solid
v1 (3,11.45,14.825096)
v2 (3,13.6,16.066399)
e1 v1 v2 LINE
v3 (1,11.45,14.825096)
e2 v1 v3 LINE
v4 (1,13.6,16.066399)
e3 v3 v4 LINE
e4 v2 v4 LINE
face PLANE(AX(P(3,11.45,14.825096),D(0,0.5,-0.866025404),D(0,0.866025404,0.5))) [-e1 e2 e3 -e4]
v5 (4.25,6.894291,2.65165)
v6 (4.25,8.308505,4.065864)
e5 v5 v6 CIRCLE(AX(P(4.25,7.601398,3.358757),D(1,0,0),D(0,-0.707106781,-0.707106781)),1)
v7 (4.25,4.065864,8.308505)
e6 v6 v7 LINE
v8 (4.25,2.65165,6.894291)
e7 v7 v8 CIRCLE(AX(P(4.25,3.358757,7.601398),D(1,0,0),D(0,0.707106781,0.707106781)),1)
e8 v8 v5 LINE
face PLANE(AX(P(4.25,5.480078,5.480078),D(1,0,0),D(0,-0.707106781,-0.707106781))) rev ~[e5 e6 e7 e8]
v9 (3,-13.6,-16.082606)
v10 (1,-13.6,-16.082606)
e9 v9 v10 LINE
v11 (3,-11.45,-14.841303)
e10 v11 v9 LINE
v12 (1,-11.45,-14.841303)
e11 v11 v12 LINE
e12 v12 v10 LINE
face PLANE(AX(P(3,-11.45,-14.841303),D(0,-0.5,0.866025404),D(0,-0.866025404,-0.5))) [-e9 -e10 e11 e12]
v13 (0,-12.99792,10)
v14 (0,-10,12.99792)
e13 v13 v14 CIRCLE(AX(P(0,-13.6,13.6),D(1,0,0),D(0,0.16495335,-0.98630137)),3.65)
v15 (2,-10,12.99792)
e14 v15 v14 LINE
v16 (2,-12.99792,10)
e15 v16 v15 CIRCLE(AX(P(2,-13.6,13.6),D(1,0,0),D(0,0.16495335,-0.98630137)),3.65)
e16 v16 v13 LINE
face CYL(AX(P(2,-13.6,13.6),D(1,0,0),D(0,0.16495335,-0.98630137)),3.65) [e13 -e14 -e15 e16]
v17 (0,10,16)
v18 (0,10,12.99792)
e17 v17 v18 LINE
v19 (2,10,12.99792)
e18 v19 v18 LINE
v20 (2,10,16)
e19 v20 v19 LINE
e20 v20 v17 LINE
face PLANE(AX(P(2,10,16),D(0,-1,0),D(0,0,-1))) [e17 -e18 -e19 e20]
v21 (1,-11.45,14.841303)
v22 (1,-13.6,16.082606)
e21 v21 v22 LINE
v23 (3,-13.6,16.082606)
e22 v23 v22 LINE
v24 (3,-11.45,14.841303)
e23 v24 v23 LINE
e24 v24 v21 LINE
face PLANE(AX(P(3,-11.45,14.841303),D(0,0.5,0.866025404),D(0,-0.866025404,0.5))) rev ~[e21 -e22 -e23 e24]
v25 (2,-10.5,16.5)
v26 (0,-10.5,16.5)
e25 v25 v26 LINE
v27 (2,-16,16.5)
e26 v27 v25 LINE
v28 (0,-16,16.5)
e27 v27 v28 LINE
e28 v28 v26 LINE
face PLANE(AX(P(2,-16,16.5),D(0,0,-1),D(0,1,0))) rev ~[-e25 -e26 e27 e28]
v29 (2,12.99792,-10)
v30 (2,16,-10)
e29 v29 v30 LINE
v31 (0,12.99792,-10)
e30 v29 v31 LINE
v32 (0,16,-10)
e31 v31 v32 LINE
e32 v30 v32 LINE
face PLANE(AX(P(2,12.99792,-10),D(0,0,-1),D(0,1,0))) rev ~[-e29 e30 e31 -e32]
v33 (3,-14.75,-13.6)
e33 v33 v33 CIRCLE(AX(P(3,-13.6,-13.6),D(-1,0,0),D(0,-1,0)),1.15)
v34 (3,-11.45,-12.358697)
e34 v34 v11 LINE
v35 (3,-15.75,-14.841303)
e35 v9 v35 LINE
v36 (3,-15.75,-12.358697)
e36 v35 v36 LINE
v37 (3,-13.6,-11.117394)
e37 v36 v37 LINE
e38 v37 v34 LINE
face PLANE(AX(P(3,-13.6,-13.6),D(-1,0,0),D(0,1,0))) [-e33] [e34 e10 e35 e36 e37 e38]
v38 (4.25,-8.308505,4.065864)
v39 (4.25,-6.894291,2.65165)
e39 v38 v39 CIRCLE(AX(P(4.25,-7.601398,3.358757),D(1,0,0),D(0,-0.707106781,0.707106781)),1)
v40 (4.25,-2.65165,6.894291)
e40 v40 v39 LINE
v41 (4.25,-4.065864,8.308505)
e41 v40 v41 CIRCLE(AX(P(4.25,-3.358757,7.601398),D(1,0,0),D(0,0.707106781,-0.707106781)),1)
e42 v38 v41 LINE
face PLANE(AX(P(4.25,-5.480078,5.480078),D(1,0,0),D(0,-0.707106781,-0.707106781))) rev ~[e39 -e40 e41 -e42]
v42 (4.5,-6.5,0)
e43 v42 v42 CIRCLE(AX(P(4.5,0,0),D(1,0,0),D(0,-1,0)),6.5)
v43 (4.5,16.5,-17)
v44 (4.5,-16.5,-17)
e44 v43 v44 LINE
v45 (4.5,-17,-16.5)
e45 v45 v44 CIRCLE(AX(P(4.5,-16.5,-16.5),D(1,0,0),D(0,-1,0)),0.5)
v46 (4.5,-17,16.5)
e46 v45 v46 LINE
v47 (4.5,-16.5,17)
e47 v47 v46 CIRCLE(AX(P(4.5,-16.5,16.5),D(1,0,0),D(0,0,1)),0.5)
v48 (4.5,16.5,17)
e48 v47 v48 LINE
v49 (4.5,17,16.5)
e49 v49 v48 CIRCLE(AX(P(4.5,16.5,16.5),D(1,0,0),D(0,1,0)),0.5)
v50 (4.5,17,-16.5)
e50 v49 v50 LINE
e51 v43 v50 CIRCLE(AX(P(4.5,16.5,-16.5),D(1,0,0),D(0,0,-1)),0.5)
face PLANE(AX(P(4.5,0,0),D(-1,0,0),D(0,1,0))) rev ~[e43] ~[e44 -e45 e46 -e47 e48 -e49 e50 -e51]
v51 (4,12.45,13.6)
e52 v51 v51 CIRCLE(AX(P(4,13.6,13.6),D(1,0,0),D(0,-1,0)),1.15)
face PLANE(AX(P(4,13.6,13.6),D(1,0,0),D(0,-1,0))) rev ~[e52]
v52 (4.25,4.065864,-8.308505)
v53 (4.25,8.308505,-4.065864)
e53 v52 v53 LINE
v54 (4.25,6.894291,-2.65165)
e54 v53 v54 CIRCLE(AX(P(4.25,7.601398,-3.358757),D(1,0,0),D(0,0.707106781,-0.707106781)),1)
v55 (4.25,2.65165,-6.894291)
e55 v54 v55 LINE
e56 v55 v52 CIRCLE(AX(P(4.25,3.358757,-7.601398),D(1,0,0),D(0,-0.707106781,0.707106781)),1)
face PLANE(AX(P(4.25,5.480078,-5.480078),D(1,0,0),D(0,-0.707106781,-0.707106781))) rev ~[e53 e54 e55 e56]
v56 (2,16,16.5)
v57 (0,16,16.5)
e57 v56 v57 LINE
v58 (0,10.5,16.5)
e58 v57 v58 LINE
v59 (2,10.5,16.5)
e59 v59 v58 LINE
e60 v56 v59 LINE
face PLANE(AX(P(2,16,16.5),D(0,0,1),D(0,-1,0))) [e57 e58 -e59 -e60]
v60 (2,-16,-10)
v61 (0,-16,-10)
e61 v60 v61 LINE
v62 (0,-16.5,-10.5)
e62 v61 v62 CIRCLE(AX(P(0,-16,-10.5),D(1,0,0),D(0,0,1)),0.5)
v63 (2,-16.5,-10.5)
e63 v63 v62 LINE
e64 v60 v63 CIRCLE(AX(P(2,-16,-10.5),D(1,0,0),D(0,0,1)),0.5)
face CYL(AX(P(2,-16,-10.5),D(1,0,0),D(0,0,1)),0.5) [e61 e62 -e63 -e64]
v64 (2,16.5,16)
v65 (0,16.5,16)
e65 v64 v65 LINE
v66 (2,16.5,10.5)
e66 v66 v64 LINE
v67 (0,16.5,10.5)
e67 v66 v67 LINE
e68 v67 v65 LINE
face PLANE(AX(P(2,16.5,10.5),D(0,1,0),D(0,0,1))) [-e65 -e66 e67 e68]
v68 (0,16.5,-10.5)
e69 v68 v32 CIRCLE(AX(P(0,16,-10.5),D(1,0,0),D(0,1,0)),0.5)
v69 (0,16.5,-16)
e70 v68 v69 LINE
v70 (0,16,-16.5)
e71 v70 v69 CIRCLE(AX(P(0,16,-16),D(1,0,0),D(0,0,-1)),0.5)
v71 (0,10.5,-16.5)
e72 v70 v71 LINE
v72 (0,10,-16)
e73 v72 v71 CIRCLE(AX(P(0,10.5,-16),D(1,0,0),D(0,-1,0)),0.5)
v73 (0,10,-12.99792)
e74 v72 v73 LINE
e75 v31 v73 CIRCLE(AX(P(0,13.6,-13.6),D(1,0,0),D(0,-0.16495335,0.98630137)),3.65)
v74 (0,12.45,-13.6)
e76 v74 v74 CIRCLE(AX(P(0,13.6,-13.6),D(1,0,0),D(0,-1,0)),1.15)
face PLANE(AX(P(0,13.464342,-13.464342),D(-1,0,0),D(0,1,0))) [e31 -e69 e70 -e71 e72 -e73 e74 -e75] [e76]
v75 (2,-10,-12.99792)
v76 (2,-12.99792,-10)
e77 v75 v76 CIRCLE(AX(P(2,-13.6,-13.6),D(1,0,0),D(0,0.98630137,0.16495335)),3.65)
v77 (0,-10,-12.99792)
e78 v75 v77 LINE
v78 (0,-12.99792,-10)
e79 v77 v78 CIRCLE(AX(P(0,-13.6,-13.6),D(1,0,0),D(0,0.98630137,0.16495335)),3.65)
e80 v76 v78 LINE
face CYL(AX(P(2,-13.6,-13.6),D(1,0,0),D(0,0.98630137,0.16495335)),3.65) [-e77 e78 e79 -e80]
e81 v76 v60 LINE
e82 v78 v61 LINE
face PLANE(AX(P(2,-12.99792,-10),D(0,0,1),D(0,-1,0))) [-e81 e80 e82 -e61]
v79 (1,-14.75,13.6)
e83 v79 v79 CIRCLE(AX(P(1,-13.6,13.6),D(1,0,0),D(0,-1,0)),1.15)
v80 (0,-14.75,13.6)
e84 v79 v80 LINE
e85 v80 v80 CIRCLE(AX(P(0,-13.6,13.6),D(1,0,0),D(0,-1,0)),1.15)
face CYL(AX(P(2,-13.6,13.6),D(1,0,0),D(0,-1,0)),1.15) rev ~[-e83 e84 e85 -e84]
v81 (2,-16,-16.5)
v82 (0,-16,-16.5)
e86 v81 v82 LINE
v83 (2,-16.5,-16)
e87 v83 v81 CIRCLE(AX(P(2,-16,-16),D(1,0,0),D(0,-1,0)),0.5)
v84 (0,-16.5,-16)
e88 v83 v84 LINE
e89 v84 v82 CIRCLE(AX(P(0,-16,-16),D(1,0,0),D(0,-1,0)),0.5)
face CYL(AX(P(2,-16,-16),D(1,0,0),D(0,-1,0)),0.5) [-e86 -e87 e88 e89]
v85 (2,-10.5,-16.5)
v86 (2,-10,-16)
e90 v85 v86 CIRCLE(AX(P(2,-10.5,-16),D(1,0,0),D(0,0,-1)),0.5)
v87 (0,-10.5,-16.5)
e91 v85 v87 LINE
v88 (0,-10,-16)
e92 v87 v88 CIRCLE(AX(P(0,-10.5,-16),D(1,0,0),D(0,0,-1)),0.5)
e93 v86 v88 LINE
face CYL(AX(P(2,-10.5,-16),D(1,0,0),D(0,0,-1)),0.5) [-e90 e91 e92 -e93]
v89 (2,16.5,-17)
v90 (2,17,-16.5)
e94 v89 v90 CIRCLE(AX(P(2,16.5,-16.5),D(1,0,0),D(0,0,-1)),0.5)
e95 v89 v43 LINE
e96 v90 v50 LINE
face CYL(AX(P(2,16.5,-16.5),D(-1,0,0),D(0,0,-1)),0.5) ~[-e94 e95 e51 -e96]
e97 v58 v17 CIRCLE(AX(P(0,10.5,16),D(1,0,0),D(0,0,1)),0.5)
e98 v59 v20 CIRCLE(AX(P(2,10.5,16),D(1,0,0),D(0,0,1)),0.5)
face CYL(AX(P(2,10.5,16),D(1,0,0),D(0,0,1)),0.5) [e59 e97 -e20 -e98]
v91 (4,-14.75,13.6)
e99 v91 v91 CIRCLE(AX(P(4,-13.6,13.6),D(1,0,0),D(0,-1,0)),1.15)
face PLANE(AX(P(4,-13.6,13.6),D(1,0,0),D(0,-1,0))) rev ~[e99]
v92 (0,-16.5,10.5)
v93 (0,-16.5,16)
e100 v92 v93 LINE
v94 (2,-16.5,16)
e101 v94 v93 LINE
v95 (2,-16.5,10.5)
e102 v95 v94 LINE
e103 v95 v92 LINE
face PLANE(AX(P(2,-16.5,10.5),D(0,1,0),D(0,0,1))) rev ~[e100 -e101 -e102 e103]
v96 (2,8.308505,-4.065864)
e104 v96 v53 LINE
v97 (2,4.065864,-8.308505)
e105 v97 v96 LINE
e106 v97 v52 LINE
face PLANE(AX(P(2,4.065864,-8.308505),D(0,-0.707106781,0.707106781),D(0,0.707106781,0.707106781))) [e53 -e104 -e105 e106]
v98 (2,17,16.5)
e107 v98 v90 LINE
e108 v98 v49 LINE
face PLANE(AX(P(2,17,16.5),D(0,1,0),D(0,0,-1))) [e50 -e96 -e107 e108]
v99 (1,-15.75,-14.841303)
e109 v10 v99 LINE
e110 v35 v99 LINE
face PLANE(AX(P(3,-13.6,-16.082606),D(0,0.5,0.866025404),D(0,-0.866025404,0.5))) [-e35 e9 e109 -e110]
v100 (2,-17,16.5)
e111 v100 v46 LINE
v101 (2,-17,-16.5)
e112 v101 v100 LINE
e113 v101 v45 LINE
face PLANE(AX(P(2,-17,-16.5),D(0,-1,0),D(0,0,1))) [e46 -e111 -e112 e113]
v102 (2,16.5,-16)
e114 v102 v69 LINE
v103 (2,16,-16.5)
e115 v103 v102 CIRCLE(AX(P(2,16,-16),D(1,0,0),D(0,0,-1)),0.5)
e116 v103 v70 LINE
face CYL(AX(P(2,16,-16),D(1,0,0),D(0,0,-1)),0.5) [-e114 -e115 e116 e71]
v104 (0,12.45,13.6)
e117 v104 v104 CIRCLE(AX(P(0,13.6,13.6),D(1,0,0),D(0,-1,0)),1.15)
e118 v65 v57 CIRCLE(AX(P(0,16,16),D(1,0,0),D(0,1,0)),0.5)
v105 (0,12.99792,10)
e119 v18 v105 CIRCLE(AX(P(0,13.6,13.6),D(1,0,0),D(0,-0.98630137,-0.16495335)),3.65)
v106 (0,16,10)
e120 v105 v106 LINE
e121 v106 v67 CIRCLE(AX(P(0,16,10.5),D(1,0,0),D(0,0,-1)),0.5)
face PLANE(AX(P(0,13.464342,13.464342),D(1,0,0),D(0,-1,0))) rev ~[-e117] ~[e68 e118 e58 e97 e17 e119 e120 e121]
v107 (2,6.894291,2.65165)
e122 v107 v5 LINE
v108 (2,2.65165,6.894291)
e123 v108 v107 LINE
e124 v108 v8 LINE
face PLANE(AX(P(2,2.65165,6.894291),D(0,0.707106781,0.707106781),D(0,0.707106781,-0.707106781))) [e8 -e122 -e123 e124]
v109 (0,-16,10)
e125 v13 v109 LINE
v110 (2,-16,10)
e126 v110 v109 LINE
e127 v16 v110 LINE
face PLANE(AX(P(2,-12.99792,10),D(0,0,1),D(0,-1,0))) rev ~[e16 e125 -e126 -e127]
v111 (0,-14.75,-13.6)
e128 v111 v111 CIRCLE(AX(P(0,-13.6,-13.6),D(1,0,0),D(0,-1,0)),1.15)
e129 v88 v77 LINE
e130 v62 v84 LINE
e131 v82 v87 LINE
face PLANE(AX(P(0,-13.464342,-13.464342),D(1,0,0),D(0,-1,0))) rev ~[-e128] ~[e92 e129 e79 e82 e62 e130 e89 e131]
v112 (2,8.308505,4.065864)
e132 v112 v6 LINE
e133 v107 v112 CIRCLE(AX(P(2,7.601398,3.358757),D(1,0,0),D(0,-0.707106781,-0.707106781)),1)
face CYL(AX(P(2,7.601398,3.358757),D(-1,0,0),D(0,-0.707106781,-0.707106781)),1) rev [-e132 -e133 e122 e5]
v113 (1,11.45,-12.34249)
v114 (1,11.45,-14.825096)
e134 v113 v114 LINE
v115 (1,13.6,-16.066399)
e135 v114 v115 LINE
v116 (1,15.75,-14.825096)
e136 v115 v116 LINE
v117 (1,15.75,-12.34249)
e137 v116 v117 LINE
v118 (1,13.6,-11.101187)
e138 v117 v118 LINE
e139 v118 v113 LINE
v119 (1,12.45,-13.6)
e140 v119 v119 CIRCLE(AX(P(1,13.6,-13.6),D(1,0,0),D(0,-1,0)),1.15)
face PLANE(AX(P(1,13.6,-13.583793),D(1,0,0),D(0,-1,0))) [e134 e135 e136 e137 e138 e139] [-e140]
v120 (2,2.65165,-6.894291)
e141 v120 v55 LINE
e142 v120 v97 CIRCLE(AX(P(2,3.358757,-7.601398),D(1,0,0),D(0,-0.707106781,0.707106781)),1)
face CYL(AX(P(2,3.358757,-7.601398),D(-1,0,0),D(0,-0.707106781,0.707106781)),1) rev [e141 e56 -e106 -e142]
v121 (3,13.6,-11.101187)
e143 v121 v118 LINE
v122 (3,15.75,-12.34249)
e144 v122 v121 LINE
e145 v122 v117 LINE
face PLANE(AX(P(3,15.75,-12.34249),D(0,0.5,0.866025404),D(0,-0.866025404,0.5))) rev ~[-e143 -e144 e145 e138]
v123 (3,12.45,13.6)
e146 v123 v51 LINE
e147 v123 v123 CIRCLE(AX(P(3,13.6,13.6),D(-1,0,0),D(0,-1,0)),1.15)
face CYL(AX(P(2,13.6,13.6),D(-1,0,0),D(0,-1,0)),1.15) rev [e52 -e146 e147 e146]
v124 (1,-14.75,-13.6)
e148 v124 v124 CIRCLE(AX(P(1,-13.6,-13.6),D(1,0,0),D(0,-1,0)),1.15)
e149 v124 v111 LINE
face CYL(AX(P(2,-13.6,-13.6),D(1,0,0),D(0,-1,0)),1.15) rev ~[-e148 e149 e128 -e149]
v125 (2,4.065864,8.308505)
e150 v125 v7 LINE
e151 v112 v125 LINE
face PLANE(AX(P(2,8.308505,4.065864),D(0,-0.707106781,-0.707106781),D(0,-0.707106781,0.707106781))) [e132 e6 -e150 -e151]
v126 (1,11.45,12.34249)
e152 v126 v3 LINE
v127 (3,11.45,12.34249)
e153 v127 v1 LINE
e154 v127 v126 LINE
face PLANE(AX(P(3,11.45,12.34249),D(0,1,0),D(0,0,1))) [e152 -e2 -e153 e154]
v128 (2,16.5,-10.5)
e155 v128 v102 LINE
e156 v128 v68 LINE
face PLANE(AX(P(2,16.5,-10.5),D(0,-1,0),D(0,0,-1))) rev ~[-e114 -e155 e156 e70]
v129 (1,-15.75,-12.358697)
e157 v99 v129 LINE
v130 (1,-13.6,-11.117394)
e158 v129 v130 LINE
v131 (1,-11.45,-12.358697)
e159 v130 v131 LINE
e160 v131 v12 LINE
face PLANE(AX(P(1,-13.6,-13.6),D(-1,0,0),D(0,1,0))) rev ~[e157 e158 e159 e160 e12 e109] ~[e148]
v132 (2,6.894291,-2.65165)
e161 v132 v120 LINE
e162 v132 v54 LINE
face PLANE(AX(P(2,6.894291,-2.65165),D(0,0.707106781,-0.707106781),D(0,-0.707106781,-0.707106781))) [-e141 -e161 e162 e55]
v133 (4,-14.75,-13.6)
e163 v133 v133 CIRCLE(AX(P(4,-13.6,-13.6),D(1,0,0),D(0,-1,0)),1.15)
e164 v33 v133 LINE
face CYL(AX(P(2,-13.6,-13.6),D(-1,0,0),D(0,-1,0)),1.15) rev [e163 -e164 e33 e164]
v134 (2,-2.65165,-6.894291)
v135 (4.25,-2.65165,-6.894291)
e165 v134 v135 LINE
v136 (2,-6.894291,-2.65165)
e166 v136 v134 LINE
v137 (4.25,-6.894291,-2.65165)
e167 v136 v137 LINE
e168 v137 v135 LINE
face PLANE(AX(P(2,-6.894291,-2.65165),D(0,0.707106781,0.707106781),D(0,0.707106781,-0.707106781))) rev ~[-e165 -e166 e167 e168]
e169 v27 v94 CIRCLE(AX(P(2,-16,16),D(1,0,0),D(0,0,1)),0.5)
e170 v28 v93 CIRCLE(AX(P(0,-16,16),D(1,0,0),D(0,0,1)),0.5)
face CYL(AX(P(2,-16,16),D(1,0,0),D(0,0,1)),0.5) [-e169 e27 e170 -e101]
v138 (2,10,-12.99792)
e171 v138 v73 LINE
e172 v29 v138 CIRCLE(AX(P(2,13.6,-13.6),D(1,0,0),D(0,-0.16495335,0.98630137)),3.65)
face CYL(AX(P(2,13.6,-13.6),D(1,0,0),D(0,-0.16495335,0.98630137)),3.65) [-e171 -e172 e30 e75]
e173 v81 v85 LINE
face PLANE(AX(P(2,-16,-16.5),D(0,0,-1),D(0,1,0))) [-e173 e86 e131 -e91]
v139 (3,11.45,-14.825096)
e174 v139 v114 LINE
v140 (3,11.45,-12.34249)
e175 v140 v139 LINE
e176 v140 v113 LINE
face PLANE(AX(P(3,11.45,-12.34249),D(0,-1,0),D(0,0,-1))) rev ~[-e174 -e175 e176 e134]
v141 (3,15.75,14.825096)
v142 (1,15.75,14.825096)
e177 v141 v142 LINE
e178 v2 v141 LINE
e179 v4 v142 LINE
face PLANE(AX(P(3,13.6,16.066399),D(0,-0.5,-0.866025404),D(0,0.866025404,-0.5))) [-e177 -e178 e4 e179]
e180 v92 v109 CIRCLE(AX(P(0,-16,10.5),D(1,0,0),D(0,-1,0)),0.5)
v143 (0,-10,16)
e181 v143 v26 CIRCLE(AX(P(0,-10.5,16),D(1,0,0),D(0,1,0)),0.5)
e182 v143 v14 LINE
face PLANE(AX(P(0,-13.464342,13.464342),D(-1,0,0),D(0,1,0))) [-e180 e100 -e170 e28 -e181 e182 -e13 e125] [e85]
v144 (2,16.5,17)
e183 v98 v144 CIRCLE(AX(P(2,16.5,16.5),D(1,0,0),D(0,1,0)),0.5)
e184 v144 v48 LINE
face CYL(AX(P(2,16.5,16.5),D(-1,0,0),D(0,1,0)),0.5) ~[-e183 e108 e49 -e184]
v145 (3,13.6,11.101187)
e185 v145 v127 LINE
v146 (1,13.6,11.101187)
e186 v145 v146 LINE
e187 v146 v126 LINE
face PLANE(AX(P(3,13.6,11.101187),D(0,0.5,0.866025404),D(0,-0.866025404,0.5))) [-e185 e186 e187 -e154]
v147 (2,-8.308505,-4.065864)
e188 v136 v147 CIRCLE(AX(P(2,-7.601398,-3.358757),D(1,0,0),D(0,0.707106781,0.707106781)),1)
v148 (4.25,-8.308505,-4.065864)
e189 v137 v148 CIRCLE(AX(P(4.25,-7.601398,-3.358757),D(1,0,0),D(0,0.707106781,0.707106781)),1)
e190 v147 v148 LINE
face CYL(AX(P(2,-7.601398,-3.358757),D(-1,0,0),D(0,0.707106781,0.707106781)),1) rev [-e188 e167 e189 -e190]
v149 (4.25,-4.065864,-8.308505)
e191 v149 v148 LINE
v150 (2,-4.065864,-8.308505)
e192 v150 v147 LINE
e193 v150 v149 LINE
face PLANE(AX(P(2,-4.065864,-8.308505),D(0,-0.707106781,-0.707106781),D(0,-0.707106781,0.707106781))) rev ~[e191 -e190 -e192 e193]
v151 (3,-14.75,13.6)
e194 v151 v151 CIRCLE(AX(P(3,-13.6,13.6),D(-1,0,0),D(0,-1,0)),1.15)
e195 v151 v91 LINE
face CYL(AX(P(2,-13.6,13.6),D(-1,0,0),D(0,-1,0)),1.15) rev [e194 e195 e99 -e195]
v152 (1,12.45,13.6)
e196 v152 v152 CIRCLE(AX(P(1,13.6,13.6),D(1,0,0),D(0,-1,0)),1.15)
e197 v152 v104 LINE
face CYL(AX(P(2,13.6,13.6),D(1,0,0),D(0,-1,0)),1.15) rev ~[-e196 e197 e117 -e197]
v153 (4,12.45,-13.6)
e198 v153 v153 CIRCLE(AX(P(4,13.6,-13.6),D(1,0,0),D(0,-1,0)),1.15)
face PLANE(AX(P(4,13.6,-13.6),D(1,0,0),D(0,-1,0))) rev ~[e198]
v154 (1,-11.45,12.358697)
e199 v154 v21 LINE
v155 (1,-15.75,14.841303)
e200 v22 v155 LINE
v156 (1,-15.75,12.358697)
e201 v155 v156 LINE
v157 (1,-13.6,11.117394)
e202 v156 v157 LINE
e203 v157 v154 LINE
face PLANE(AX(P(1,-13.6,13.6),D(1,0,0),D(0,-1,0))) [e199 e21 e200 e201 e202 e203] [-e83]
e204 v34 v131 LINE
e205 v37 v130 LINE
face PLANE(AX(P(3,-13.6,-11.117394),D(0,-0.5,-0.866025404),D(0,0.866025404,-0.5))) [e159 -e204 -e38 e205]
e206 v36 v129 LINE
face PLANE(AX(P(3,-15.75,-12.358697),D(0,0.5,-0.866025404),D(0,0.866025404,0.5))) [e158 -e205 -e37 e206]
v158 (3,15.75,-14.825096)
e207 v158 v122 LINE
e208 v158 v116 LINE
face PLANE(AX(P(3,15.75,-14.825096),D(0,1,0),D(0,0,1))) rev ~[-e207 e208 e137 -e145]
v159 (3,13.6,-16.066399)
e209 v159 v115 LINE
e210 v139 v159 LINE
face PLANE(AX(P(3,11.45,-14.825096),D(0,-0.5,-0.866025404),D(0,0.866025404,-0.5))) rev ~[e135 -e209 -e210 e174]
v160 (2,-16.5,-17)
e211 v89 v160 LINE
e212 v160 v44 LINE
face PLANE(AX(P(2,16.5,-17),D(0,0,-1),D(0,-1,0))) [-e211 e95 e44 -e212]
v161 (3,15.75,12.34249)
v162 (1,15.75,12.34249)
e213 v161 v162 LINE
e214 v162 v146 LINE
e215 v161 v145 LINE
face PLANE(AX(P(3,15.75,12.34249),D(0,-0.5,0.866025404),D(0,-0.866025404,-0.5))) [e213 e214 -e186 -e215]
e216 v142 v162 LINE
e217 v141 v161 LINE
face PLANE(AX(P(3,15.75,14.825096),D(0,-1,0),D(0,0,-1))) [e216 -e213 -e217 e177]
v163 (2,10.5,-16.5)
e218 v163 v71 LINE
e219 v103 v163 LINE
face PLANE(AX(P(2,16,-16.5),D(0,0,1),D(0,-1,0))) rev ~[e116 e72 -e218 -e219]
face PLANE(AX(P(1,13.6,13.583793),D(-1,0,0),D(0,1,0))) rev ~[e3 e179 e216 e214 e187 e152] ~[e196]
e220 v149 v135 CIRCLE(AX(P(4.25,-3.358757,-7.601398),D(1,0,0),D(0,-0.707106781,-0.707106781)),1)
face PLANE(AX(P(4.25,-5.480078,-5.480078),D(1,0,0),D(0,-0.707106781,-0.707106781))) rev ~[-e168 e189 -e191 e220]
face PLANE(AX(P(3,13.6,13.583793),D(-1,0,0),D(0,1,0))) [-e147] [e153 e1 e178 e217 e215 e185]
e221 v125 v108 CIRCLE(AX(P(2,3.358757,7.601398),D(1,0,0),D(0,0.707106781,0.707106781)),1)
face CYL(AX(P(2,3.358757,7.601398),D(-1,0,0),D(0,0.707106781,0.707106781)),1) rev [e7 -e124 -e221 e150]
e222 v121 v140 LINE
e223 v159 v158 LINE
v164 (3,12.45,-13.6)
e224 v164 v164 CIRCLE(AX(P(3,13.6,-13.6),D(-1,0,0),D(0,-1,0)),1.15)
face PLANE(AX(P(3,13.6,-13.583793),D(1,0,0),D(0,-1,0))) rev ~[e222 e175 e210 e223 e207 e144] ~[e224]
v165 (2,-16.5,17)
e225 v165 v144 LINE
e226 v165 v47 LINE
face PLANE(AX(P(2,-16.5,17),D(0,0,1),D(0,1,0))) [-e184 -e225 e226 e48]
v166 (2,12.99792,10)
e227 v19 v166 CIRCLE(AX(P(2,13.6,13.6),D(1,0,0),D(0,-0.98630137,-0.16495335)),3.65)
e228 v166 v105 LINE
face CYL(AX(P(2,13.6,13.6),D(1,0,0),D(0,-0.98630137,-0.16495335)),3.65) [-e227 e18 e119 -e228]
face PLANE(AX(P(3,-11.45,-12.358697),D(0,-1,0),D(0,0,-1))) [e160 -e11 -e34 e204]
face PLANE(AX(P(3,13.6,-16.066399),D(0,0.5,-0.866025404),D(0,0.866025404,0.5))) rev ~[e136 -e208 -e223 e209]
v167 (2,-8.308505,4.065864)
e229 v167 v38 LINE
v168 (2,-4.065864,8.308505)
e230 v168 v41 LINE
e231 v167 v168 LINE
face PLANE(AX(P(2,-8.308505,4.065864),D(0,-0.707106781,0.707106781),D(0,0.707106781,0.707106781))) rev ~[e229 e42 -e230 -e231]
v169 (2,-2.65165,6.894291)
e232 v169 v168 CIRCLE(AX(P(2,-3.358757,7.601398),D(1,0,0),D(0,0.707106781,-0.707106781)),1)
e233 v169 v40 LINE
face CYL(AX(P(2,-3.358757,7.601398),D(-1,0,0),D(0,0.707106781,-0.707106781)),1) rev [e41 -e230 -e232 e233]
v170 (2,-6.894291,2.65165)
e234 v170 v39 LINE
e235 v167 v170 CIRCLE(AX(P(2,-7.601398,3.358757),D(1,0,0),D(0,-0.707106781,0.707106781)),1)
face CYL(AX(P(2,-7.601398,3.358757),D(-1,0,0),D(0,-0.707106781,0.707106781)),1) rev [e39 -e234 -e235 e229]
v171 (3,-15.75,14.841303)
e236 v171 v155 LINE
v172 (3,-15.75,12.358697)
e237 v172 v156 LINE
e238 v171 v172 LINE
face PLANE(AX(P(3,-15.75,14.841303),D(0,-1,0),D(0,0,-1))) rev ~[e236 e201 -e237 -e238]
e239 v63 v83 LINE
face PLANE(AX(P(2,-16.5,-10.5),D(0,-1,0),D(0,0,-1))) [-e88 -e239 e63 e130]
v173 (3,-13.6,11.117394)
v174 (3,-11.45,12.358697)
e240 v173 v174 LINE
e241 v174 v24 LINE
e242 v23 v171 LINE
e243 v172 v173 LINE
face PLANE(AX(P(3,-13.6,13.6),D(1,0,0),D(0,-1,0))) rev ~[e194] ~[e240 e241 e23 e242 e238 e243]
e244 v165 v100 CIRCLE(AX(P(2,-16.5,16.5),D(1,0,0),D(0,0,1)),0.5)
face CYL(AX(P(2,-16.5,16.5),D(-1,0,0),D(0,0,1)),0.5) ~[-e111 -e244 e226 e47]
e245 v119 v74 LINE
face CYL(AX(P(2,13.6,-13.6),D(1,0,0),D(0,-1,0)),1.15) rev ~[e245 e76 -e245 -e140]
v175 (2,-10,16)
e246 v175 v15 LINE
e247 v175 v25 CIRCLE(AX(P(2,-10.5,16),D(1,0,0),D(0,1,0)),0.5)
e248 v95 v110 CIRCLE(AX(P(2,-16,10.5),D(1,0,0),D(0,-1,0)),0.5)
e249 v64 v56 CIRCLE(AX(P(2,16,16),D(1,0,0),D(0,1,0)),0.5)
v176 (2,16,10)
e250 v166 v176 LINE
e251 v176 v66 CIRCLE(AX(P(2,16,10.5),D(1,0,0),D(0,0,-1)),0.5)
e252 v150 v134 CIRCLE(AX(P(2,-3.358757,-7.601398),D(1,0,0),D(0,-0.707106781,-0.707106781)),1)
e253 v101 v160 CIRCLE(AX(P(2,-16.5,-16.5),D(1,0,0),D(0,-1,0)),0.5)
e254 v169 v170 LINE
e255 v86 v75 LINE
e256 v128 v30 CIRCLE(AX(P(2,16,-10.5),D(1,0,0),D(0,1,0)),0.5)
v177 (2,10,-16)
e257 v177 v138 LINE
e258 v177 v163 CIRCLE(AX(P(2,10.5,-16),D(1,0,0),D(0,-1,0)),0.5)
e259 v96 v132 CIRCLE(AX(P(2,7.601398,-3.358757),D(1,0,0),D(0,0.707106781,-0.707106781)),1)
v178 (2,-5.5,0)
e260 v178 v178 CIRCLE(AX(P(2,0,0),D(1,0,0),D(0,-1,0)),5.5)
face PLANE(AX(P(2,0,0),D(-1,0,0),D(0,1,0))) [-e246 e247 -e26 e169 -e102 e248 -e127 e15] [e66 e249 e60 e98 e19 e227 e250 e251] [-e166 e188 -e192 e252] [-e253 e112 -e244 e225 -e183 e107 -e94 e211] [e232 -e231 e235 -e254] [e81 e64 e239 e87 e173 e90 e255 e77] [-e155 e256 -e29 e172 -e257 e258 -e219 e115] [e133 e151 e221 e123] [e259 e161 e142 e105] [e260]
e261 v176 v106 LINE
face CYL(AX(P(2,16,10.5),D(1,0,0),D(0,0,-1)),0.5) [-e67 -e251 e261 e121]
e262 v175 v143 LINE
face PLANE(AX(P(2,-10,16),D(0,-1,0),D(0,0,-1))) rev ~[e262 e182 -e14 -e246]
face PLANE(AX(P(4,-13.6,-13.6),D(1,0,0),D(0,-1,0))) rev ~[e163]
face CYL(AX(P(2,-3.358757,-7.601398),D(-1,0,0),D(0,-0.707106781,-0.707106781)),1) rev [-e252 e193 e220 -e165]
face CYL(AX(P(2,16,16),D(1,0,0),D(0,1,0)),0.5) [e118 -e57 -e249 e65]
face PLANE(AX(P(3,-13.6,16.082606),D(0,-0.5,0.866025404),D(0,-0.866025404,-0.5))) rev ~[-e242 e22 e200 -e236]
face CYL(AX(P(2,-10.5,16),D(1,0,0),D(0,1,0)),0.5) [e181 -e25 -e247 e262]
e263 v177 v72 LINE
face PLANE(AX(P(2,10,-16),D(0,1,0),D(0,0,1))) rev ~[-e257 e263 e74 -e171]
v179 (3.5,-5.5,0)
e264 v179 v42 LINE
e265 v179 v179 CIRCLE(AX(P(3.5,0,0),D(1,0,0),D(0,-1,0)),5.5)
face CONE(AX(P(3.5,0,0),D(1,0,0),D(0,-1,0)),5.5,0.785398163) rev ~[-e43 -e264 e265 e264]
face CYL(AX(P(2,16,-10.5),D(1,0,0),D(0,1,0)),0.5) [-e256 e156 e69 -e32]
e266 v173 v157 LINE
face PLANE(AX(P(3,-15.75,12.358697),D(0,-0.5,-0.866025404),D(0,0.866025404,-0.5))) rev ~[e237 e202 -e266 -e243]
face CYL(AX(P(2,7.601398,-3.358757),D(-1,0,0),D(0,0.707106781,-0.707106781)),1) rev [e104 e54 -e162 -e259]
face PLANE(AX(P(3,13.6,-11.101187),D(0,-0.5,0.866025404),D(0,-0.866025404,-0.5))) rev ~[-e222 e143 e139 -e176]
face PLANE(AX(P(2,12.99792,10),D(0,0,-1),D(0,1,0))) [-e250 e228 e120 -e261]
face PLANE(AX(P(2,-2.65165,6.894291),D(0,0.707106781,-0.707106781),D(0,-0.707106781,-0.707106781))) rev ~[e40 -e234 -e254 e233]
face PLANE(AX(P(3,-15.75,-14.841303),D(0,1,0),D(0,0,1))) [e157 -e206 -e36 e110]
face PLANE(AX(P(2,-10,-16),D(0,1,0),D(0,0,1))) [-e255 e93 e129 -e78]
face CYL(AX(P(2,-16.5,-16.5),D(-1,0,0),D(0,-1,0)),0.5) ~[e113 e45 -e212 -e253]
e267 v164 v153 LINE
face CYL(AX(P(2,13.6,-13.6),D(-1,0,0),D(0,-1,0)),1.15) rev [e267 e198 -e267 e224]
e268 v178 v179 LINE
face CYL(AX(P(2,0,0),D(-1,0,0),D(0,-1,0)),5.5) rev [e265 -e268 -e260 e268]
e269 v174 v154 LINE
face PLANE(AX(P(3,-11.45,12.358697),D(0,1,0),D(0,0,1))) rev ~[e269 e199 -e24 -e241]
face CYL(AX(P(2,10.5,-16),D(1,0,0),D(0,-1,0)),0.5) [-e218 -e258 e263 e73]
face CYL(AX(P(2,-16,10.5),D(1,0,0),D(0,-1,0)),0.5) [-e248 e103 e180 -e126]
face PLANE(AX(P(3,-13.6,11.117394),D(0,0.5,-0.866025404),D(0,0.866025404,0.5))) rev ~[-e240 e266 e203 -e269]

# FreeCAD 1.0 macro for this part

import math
import FreeCAD as App
import Part
import Sketcher

V = App.Vector
Q = App.Units.Quantity


def edges_at(feature, points):
    """Names of the edges that pass closest to the given points."""
    edges = feature.Shape.Edges
    near = lambda p: min(range(len(edges)), key=lambda i: edges[i].distToShape(Part.Vertex(*p))[0])
    return sorted({f"Edge{near(p) + 1}" for p in points})

doc = App.newDocument("Part")
params = doc.addObject("Spreadsheet::Sheet", "Params")
for row, (alias, value) in enumerate([
    ("sketch1_diameter", "11 mm"),
    ("sketch1_radius", "0.5 mm"),
    ("sketch1_width", "33 mm"),
    ("pad1_length", "2.5 mm"),
    ("sketch2_radius", "1 mm"),
    ("sketch2_length", "6 mm"),
    ("pocket1_length", "2.25 mm"),
    ("sketch3_diameter", "2.3 mm"),
    ("pocket2_length", "2 mm"),
    ("sketch4_diameter", "2.3 mm"),
    ("sketch4_radius", "0.5 mm"),
    ("sketch4_radius2", "3.65 mm"),
    ("sketch4_width", "5.5 mm"),
    ("pad2_length", "2 mm"),
    ("pocket3_length", "2 mm"),
    ("chamfer_size", "1 mm"),
], start=1):
    params.set(f"A{row}", alias)
    params.set(f"B{row}", "=" + value)
    params.setAlias(f"B{row}", alias)

body = doc.addObject("PartDesign::Body", "Body")

# Sketch on YZ plane
sketch1 = body.newObject("Sketcher::SketchObject", "Sketch")
sketch1.AttachmentSupport = (doc.getObject("YZ_Plane"), [""])
sketch1.MapMode = "FlatFace"
sketch1.addGeometry([
    Part.LineSegment(V(-16.5, -17, 0), V(16.5, -17, 0)),  # 0
    Part.ArcOfCircle(Part.Circle(V(16.5, -16.5, 0), V(0, 0, 1), 0.5), math.radians(-90), math.radians(0)),  # 1
    Part.LineSegment(V(17, -16.5, 0), V(17, 16.5, 0)),  # 2
    Part.ArcOfCircle(Part.Circle(V(16.5, 16.5, 0), V(0, 0, 1), 0.5), math.radians(0), math.radians(90)),  # 3
    Part.LineSegment(V(16.5, 17, 0), V(-16.5, 17, 0)),  # 4
    Part.ArcOfCircle(Part.Circle(V(-16.5, 16.5, 0), V(0, 0, 1), 0.5), math.radians(90), math.radians(180)),  # 5
    Part.LineSegment(V(-17, 16.5, 0), V(-17, -16.5, 0)),  # 6
    Part.ArcOfCircle(Part.Circle(V(-16.5, -16.5, 0), V(0, 0, 1), 0.5), math.radians(180), math.radians(270)),  # 7
    Part.Circle(V(0, 0, 0), V(0, 0, 1), 5.5),  # 8
], False)
sketch1.addConstraint([
    Sketcher.Constraint("Tangent", 0, 2, 1, 1),
    Sketcher.Constraint("Tangent", 1, 2, 2, 1),
    Sketcher.Constraint("Tangent", 2, 2, 3, 1),
    Sketcher.Constraint("Tangent", 3, 2, 4, 1),
    Sketcher.Constraint("Tangent", 4, 2, 5, 1),
    Sketcher.Constraint("Tangent", 5, 2, 6, 1),
    Sketcher.Constraint("Tangent", 6, 2, 7, 1),
    Sketcher.Constraint("Tangent", 7, 2, 0, 1),
    Sketcher.Constraint("Horizontal", 0),
    Sketcher.Constraint("Vertical", 2),
    Sketcher.Constraint("Horizontal", 4),
    Sketcher.Constraint("Vertical", 6),
    Sketcher.Constraint("Coincident", 8, 3, -1, 1),
    Sketcher.Constraint("Equal", 1, 3),
    Sketcher.Constraint("Equal", 3, 5),
    Sketcher.Constraint("Equal", 5, 7),
    Sketcher.Constraint("Symmetric", 1, 3, 5, 3, -1, 1),
    Sketcher.Constraint("Equal", 4, 2),
    Sketcher.Constraint("Diameter", 8, Q("11 mm")),
    Sketcher.Constraint("Radius", 1, Q("0.5 mm")),
    Sketcher.Constraint("DistanceX", 0, 1, 0, 2, Q("33 mm")),
])
sketch1.setExpression("Constraints[18]", "Params.sketch1_diameter")
sketch1.setExpression("Constraints[19]", "Params.sketch1_radius")
sketch1.setExpression("Constraints[20]", "Params.sketch1_width")
pad1 = body.newObject("PartDesign::Pad", "Pad")
pad1.Profile = sketch1
pad1.setExpression("Length", "Params.pad1_length")

# Sketch on YZ plane
sketch2 = body.newObject("Sketcher::SketchObject", "Sketch001")
sketch2.AttachmentSupport = (doc.getObject("YZ_Plane"), [""])
sketch2.MapMode = "FlatFace"
sketch2.addGeometry([
    Part.ArcOfCircle(Part.Circle(V(-7.6, -3.4, 0), V(0, 0, 1), 1), math.radians(45), math.radians(225)),  # 0
    Part.LineSegment(V(-8.3, -4.1, 0), V(-4.1, -8.3, 0)),  # 1
    Part.ArcOfCircle(Part.Circle(V(-3.4, -7.6, 0), V(0, 0, 1), 1), math.radians(-135), math.radians(45)),  # 2
    Part.LineSegment(V(-2.7, -6.9, 0), V(-6.9, -2.7, 0)),  # 3
    Part.ArcOfCircle(Part.Circle(V(3.4, 7.6, 0), V(0, 0, 1), 1), math.radians(45), math.radians(225)),  # 4
    Part.LineSegment(V(2.7, 6.9, 0), V(6.9, 2.7, 0)),  # 5
    Part.ArcOfCircle(Part.Circle(V(7.6, 3.4, 0), V(0, 0, 1), 1), math.radians(-135), math.radians(45)),  # 6
    Part.LineSegment(V(8.3, 4.1, 0), V(4.1, 8.3, 0)),  # 7
    Part.ArcOfCircle(Part.Circle(V(7.6, -3.4, 0), V(0, 0, 1), 1), math.radians(-45), math.radians(135)),  # 8
    Part.LineSegment(V(6.9, -2.7, 0), V(2.7, -6.9, 0)),  # 9
    Part.ArcOfCircle(Part.Circle(V(3.4, -7.6, 0), V(0, 0, 1), 1), math.radians(135), math.radians(315)),  # 10
    Part.LineSegment(V(4.1, -8.3, 0), V(8.3, -4.1, 0)),  # 11
    Part.ArcOfCircle(Part.Circle(V(-3.4, 7.6, 0), V(0, 0, 1), 1), math.radians(-45), math.radians(135)),  # 12
    Part.LineSegment(V(-4.1, 8.3, 0), V(-8.3, 4.1, 0)),  # 13
    Part.ArcOfCircle(Part.Circle(V(-7.6, 3.4, 0), V(0, 0, 1), 1), math.radians(135), math.radians(315)),  # 14
    Part.LineSegment(V(-6.9, 2.7, 0), V(-2.7, 6.9, 0)),  # 15
], False)
sketch2.addConstraint([
    Sketcher.Constraint("Tangent", 0, 2, 1, 1),
    Sketcher.Constraint("Tangent", 1, 2, 2, 1),
    Sketcher.Constraint("Tangent", 2, 2, 3, 1),
    Sketcher.Constraint("Tangent", 3, 2, 0, 1),
    Sketcher.Constraint("Tangent", 4, 2, 5, 1),
    Sketcher.Constraint("Tangent", 5, 2, 6, 1),
    Sketcher.Constraint("Tangent", 6, 2, 7, 1),
    Sketcher.Constraint("Tangent", 7, 2, 4, 1),
    Sketcher.Constraint("Tangent", 8, 2, 9, 1),
    Sketcher.Constraint("Tangent", 9, 2, 10, 1),
    Sketcher.Constraint("Tangent", 10, 2, 11, 1),
    Sketcher.Constraint("Tangent", 11, 2, 8, 1),
    Sketcher.Constraint("Tangent", 12, 2, 13, 1),
    Sketcher.Constraint("Tangent", 13, 2, 14, 1),
    Sketcher.Constraint("Tangent", 14, 2, 15, 1),
    Sketcher.Constraint("Tangent", 15, 2, 12, 1),
    Sketcher.Constraint("Equal", 0, 2),
    Sketcher.Constraint("Equal", 2, 4),
    Sketcher.Constraint("Equal", 4, 6),
    Sketcher.Constraint("Equal", 6, 8),
    Sketcher.Constraint("Equal", 8, 10),
    Sketcher.Constraint("Equal", 10, 12),
    Sketcher.Constraint("Equal", 12, 14),
    Sketcher.Constraint("Symmetric", 2, 3, 4, 3, -1, 1),
    Sketcher.Constraint("Symmetric", 0, 3, 6, 3, -1, 1),
    Sketcher.Constraint("Symmetric", 10, 3, 12, 3, -1, 1),
    Sketcher.Constraint("Symmetric", 8, 3, 14, 3, -1, 1),
    Sketcher.Constraint("Symmetric", 0, 3, 8, 3, -2),
    Sketcher.Constraint("Symmetric", 2, 3, 10, 3, -2),
    Sketcher.Constraint("Perpendicular", 7, 9),
    Sketcher.Constraint("Radius", 0, Q("1 mm")),
    Sketcher.Constraint("Distance", 1, Q("6 mm")),
    Sketcher.Constraint("DistanceY", 8, 2, 5, 2, Q("5.303301 mm")),
    Sketcher.Constraint("DistanceX", 2, 2, 9, 2, Q("5.303301 mm")),
])
sketch2.setExpression("Constraints[30]", "Params.sketch2_radius")
sketch2.setExpression("Constraints[31]", "Params.sketch2_length")
pocket1 = body.newObject("PartDesign::Pocket", "Pocket")
pocket1.Profile = sketch2
pocket1.setExpression("Length", "Params.pocket1_length")
pocket1.Reversed = True

# Sketch on YZ plane
sketch3 = body.newObject("Sketcher::SketchObject", "Sketch002")
sketch3.AttachmentSupport = (doc.getObject("YZ_Plane"), [""])
sketch3.MapMode = "FlatFace"
sketch3.addGeometry([
    Part.Circle(V(-13.6, -13.6, 0), V(0, 0, 1), 1.1),
    Part.Circle(V(13.6, -13.6, 0), V(0, 0, 1), 1.1),
    Part.Circle(V(-13.6, 13.6, 0), V(0, 0, 1), 1.1),
    Part.Circle(V(13.6, 13.6, 0), V(0, 0, 1), 1.1),
], False)
sketch3.addConstraint([
    Sketcher.Constraint("Equal", 0, 1),
    Sketcher.Constraint("Equal", 1, 2),
    Sketcher.Constraint("Equal", 2, 3),
    Sketcher.Constraint("Symmetric", 1, 3, 2, 3, -1, 1),
    Sketcher.Constraint("Symmetric", 0, 3, 3, 3, -1, 1),
    Sketcher.Constraint("Symmetric", 0, 3, 1, 3, -2),
    Sketcher.Constraint("Diameter", 0, Q("2.3 mm")),
    Sketcher.Constraint("DistanceX", 0, 3, -1, 1, Q("13.6 mm")),
    Sketcher.Constraint("DistanceY", 0, 3, -1, 1, Q("13.6 mm")),
])
sketch3.setExpression("Constraints[6]", "Params.sketch3_diameter")
pocket2 = body.newObject("PartDesign::Pocket", "Pocket001")
pocket2.Profile = sketch3
pocket2.setExpression("Length", "Params.pocket2_length")
pocket2.Reversed = True

# Sketch on YZ plane
sketch4 = body.newObject("Sketcher::SketchObject", "Sketch003")
sketch4.AttachmentSupport = (doc.getObject("YZ_Plane"), [""])
sketch4.MapMode = "FlatFace"
sketch4.addGeometry([
    Part.LineSegment(V(16, -10, 0), V(13, -10, 0)),  # 0
    Part.ArcOfCircle(Part.Circle(V(13.6, -13.6, 0), V(0, 0, 1), 3.6), math.radians(99), math.radians(171)),  # 1
    Part.LineSegment(V(10, -13, 0), V(10, -16, 0)),  # 2
    Part.ArcOfCircle(Part.Circle(V(10.5, -16, 0), V(0, 0, 1), 0.5), math.radians(180), math.radians(270)),  # 3
    Part.LineSegment(V(10.5, -16.5, 0), V(16, -16.5, 0)),  # 4
    Part.ArcOfCircle(Part.Circle(V(16, -16, 0), V(0, 0, 1), 0.5), math.radians(-90), math.radians(0)),  # 5
    Part.LineSegment(V(16.5, -16, 0), V(16.5, -10.5, 0)),  # 6
    Part.ArcOfCircle(Part.Circle(V(16, -10.5, 0), V(0, 0, 1), 0.5), math.radians(0), math.radians(90)),  # 7
    Part.Circle(V(13.6, -13.6, 0), V(0, 0, 1), 1.1),  # 8
    Part.LineSegment(V(-13, -10, 0), V(-16, -10, 0)),  # 9
    Part.ArcOfCircle(Part.Circle(V(-16, -10.5, 0), V(0, 0, 1), 0.5), math.radians(90), math.radians(180)),  # 10
    Part.LineSegment(V(-16.5, -10.5, 0), V(-16.5, -16, 0)),  # 11
    Part.ArcOfCircle(Part.Circle(V(-16, -16, 0), V(0, 0, 1), 0.5), math.radians(180), math.radians(270)),  # 12
    Part.LineSegment(V(-16, -16.5, 0), V(-10.5, -16.5, 0)),  # 13
    Part.ArcOfCircle(Part.Circle(V(-10.5, -16, 0), V(0, 0, 1), 0.5), math.radians(-90), math.radians(0)),  # 14
    Part.LineSegment(V(-10, -16, 0), V(-10, -13, 0)),  # 15
    Part.ArcOfCircle(Part.Circle(V(-13.6, -13.6, 0), V(0, 0, 1), 3.6), math.radians(9), math.radians(81)),  # 16
    Part.Circle(V(-13.6, -13.6, 0), V(0, 0, 1), 1.1),  # 17
    Part.LineSegment(V(13, 10, 0), V(16, 10, 0)),  # 18
    Part.ArcOfCircle(Part.Circle(V(16, 10.5, 0), V(0, 0, 1), 0.5), math.radians(-90), math.radians(0)),  # 19
    Part.LineSegment(V(16.5, 10.5, 0), V(16.5, 16, 0)),  # 20
    Part.ArcOfCircle(Part.Circle(V(16, 16, 0), V(0, 0, 1), 0.5), math.radians(0), math.radians(90)),  # 21
    Part.LineSegment(V(16, 16.5, 0), V(10.5, 16.5, 0)),  # 22
    Part.ArcOfCircle(Part.Circle(V(10.5, 16, 0), V(0, 0, 1), 0.5), math.radians(90), math.radians(180)),  # 23
    Part.LineSegment(V(10, 16, 0), V(10, 13, 0)),  # 24
    Part.ArcOfCircle(Part.Circle(V(13.6, 13.6, 0), V(0, 0, 1), 3.6), math.radians(-171), math.radians(-99)),  # 25
    Part.Circle(V(13.6, 13.6, 0), V(0, 0, 1), 1.1),  # 26
    Part.LineSegment(V(-16, 10, 0), V(-13, 10, 0)),  # 27
    Part.ArcOfCircle(Part.Circle(V(-13.6, 13.6, 0), V(0, 0, 1), 3.6), math.radians(-81), math.radians(-9)),  # 28
    Part.LineSegment(V(-10, 13, 0), V(-10, 16, 0)),  # 29
    Part.ArcOfCircle(Part.Circle(V(-10.5, 16, 0), V(0, 0, 1), 0.5), math.radians(0), math.radians(90)),  # 30
    Part.LineSegment(V(-10.5, 16.5, 0), V(-16, 16.5, 0)),  # 31
    Part.ArcOfCircle(Part.Circle(V(-16, 16, 0), V(0, 0, 1), 0.5), math.radians(90), math.radians(180)),  # 32
    Part.LineSegment(V(-16.5, 16, 0), V(-16.5, 10.5, 0)),  # 33
    Part.ArcOfCircle(Part.Circle(V(-16, 10.5, 0), V(0, 0, 1), 0.5), math.radians(180), math.radians(270)),  # 34
    Part.Circle(V(-13.6, 13.6, 0), V(0, 0, 1), 1.1),  # 35
], False)
sketch4.addConstraint([
    Sketcher.Constraint("Coincident", 0, 2, 1, 1),
    Sketcher.Constraint("Coincident", 1, 2, 2, 1),
    Sketcher.Constraint("Tangent", 2, 2, 3, 1),
    Sketcher.Constraint("Tangent", 3, 2, 4, 1),
    Sketcher.Constraint("Tangent", 4, 2, 5, 1),
    Sketcher.Constraint("Tangent", 5, 2, 6, 1),
    Sketcher.Constraint("Tangent", 6, 2, 7, 1),
    Sketcher.Constraint("Tangent", 7, 2, 0, 1),
    Sketcher.Constraint("Tangent", 9, 2, 10, 1),
    Sketcher.Constraint("Tangent", 10, 2, 11, 1),
    Sketcher.Constraint("Tangent", 11, 2, 12, 1),
    Sketcher.Constraint("Tangent", 12, 2, 13, 1),
    Sketcher.Constraint("Tangent", 13, 2, 14, 1),
    Sketcher.Constraint("Tangent", 14, 2, 15, 1),
    Sketcher.Constraint("Coincident", 15, 2, 16, 1),
    Sketcher.Constraint("Coincident", 16, 2, 9, 1),
    Sketcher.Constraint("Tangent", 18, 2, 19, 1),
    Sketcher.Constraint("Tangent", 19, 2, 20, 1),
    Sketcher.Constraint("Tangent", 20, 2, 21, 1),
    Sketcher.Constraint("Tangent", 21, 2, 22, 1),
    Sketcher.Constraint("Tangent", 22, 2, 23, 1),
    Sketcher.Constraint("Tangent", 23, 2, 24, 1),
    Sketcher.Constraint("Coincident", 24, 2, 25, 1),
    Sketcher.Constraint("Coincident", 25, 2, 18, 1),
    Sketcher.Constraint("Coincident", 27, 2, 28, 1),
    Sketcher.Constraint("Coincident", 28, 2, 29, 1),
    Sketcher.Constraint("Tangent", 29, 2, 30, 1),
    Sketcher.Constraint("Tangent", 30, 2, 31, 1),
    Sketcher.Constraint("Tangent", 31, 2, 32, 1),
    Sketcher.Constraint("Tangent", 32, 2, 33, 1),
    Sketcher.Constraint("Tangent", 33, 2, 34, 1),
    Sketcher.Constraint("Tangent", 34, 2, 27, 1),
    Sketcher.Constraint("Horizontal", 0),
    Sketcher.Constraint("Vertical", 2),
    Sketcher.Constraint("Horizontal", 4),
    Sketcher.Constraint("Vertical", 6),
    Sketcher.Constraint("Horizontal", 9),
    Sketcher.Constraint("Vertical", 11),
    Sketcher.Constraint("Horizontal", 13),
    Sketcher.Constraint("Vertical", 15),
    Sketcher.Constraint("Horizontal", 18),
    Sketcher.Constraint("Vertical", 20),
    Sketcher.Constraint("Horizontal", 22),
    Sketcher.Constraint("Vertical", 24),
    Sketcher.Constraint("Horizontal", 27),
    Sketcher.Constraint("Vertical", 29),
    Sketcher.Constraint("Horizontal", 31),
    Sketcher.Constraint("Vertical", 33),
    Sketcher.Constraint("Coincident", 8, 3, 1, 3),
    Sketcher.Constraint("Coincident", 17, 3, 16, 3),
    Sketcher.Constraint("Coincident", 26, 3, 25, 3),
    Sketcher.Constraint("Coincident", 35, 3, 28, 3),
    Sketcher.Constraint("Equal", 3, 5),
    Sketcher.Constraint("Equal", 5, 7),
    Sketcher.Constraint("Equal", 7, 10),
    Sketcher.Constraint("Equal", 10, 12),
    Sketcher.Constraint("Equal", 12, 14),
    Sketcher.Constraint("Equal", 1, 16),
    Sketcher.Constraint("Equal", 8, 17),
    Sketcher.Constraint("Equal", 14, 19),
    Sketcher.Constraint("Equal", 19, 21),
    Sketcher.Constraint("Equal", 21, 23),
    Sketcher.Constraint("Equal", 16, 25),
    Sketcher.Constraint("Equal", 17, 26),
    Sketcher.Constraint("Equal", 25, 28),
    Sketcher.Constraint("Equal", 23, 30),
    Sketcher.Constraint("Equal", 30, 32),
    Sketcher.Constraint("Equal", 32, 34),
    Sketcher.Constraint("Equal", 26, 35),
    Sketcher.Constraint("Symmetric", 10, 3, 19, 3, -1, 1),
    Sketcher.Constraint("Symmetric", 14, 3, 23, 3, -1, 1),
    Sketcher.Constraint("Symmetric", 16, 3, 25, 3, -1, 1),
    Sketcher.Constraint("Symmetric", 1, 3, 28, 3, -1, 1),
    Sketcher.Constraint("Symmetric", 3, 3, 30, 3, -1, 1),
    Sketcher.Constraint("Symmetric", 7, 3, 34, 3, -1, 1),
    Sketcher.Constraint("Symmetric", 7, 3, 10, 3, -2),
    Sketcher.Constraint("Symmetric", 3, 3, 14, 3, -2),
    Sketcher.Constraint("Symmetric", 1, 3, 16, 3, -2),
    Sketcher.Constraint("Equal", 27, 2),
    Sketcher.Constraint("Equal", 31, 6),
    Sketcher.Constraint("Diameter", 8, Q("2.3 mm")),
    Sketcher.Constraint("Radius", 3, Q("0.5 mm")),
    Sketcher.Constraint("Radius", 1, Q("3.65 mm")),
    Sketcher.Constraint("DistanceX", 4, 1, 4, 2, Q("5.5 mm")),
    Sketcher.Constraint("DistanceY", 3, 3, -1, 1, Q("16 mm")),
    Sketcher.Constraint("DistanceX", -1, 1, 5, 3, Q("16 mm")),
    Sketcher.Constraint("DistanceX", -1, 1, 1, 3, Q("13.6 mm")),
])
sketch4.setExpression("Constraints[80]", "Params.sketch4_diameter")
sketch4.setExpression("Constraints[81]", "Params.sketch4_radius")
sketch4.setExpression("Constraints[82]", "Params.sketch4_radius2")
sketch4.setExpression("Constraints[83]", "Params.sketch4_width")
pad2 = body.newObject("PartDesign::Pad", "Pad001")
pad2.Profile = sketch4
pad2.setExpression("Length", "Params.pad2_length")
pad2.Reversed = True

# Sketch on YZ plane
sketch5 = body.newObject("Sketcher::SketchObject", "Sketch004")
sketch5.AttachmentSupport = (doc.getObject("YZ_Plane"), [""])
sketch5.MapMode = "FlatFace"
sketch5.AttachmentOffset = App.Placement(V(0, 0, 1), App.Rotation())
sketch5.addGeometry([
    Part.LineSegment(V(15.8, -14.8, 0), V(15.8, -12.4, 0)),  # 0
    Part.LineSegment(V(15.8, -12.4, 0), V(13.6, -11.1, 0)),  # 1
    Part.LineSegment(V(13.6, -11.1, 0), V(11.4, -12.4, 0)),  # 2
    Part.LineSegment(V(11.4, -12.4, 0), V(11.4, -14.8, 0)),  # 3
    Part.LineSegment(V(11.4, -14.8, 0), V(13.6, -16.1, 0)),  # 4
    Part.LineSegment(V(13.6, -16.1, 0), V(15.8, -14.8, 0)),  # 5
    Part.LineSegment(V(-15.8, -12.3, 0), V(-15.8, -14.8, 0)),  # 6
    Part.LineSegment(V(-15.8, -14.8, 0), V(-13.6, -16.1, 0)),  # 7
    Part.LineSegment(V(-13.6, -16.1, 0), V(-11.4, -14.8, 0)),  # 8
    Part.LineSegment(V(-11.4, -14.8, 0), V(-11.4, -12.3, 0)),  # 9
    Part.LineSegment(V(-11.4, -12.3, 0), V(-13.6, -11.1, 0)),  # 10
    Part.LineSegment(V(-13.6, -11.1, 0), V(-15.8, -12.3, 0)),  # 11
    Part.LineSegment(V(15.8, 12.4, 0), V(15.8, 14.8, 0)),  # 12
    Part.LineSegment(V(15.8, 14.8, 0), V(13.6, 16.1, 0)),  # 13
    Part.LineSegment(V(13.6, 16.1, 0), V(11.4, 14.8, 0)),  # 14
    Part.LineSegment(V(11.4, 14.8, 0), V(11.4, 12.4, 0)),  # 15
    Part.LineSegment(V(11.4, 12.4, 0), V(13.6, 11.1, 0)),  # 16
    Part.LineSegment(V(13.6, 11.1, 0), V(15.8, 12.4, 0)),  # 17
    Part.LineSegment(V(-15.8, 14.8, 0), V(-15.8, 12.3, 0)),  # 18
    Part.LineSegment(V(-15.8, 12.3, 0), V(-13.6, 11.1, 0)),  # 19
    Part.LineSegment(V(-13.6, 11.1, 0), V(-11.4, 12.3, 0)),  # 20
    Part.LineSegment(V(-11.4, 12.3, 0), V(-11.4, 14.8, 0)),  # 21
    Part.LineSegment(V(-11.4, 14.8, 0), V(-13.6, 16.1, 0)),  # 22
    Part.LineSegment(V(-13.6, 16.1, 0), V(-15.8, 14.8, 0)),  # 23
], False)
sketch5.addConstraint([
    Sketcher.Constraint("Coincident", 0, 2, 1, 1),
    Sketcher.Constraint("Coincident", 1, 2, 2, 1),
    Sketcher.Constraint("Coincident", 2, 2, 3, 1),
    Sketcher.Constraint("Coincident", 3, 2, 4, 1),
    Sketcher.Constraint("Coincident", 4, 2, 5, 1),
    Sketcher.Constraint("Coincident", 5, 2, 0, 1),
    Sketcher.Constraint("Coincident", 6, 2, 7, 1),
    Sketcher.Constraint("Coincident", 7, 2, 8, 1),
    Sketcher.Constraint("Coincident", 8, 2, 9, 1),
    Sketcher.Constraint("Coincident", 9, 2, 10, 1),
    Sketcher.Constraint("Coincident", 10, 2, 11, 1),
    Sketcher.Constraint("Coincident", 11, 2, 6, 1),
    Sketcher.Constraint("Coincident", 12, 2, 13, 1),
    Sketcher.Constraint("Coincident", 13, 2, 14, 1),
    Sketcher.Constraint("Coincident", 14, 2, 15, 1),
    Sketcher.Constraint("Coincident", 15, 2, 16, 1),
    Sketcher.Constraint("Coincident", 16, 2, 17, 1),
    Sketcher.Constraint("Coincident", 17, 2, 12, 1),
    Sketcher.Constraint("Coincident", 18, 2, 19, 1),
    Sketcher.Constraint("Coincident", 19, 2, 20, 1),
    Sketcher.Constraint("Coincident", 20, 2, 21, 1),
    Sketcher.Constraint("Coincident", 21, 2, 22, 1),
    Sketcher.Constraint("Coincident", 22, 2, 23, 1),
    Sketcher.Constraint("Coincident", 23, 2, 18, 1),
    Sketcher.Constraint("Vertical", 0),
    Sketcher.Constraint("Vertical", 3),
    Sketcher.Constraint("Vertical", 6),
    Sketcher.Constraint("Vertical", 9),
    Sketcher.Constraint("Vertical", 12),
    Sketcher.Constraint("Vertical", 15),
    Sketcher.Constraint("Vertical", 18),
    Sketcher.Constraint("Vertical", 21),
    Sketcher.Constraint("Symmetric", 5, 2, 12, 2, -1),
    Sketcher.Constraint("Symmetric", 4, 2, 13, 2, -1),
    Sketcher.Constraint("Symmetric", 3, 2, 14, 2, -1),
    Sketcher.Constraint("Symmetric", 1, 2, 16, 2, -1),
    Sketcher.Constraint("Symmetric", 11, 2, 18, 2, -1),
    Sketcher.Constraint("Symmetric", 10, 2, 19, 2, -1),
    Sketcher.Constraint("Symmetric", 9, 2, 20, 2, -1),
    Sketcher.Constraint("Symmetric", 7, 2, 22, 2, -1),
    Sketcher.Constraint("Parallel", 1, 4),
    Sketcher.Constraint("Parallel", 2, 5),
    Sketcher.Constraint("Parallel", 4, 7),
    Sketcher.Constraint("Parallel", 5, 8),
    Sketcher.Constraint("Parallel", 7, 10),
    Sketcher.Constraint("Parallel", 8, 11),
    Sketcher.Constraint("Parallel", 10, 13),
    Sketcher.Constraint("Parallel", 13, 16),
    Sketcher.Constraint("Parallel", 14, 17),
    Sketcher.Constraint("Parallel", 19, 22),
    Sketcher.Constraint("Parallel", 20, 23),
    Sketcher.Constraint("Horizontal", 0, 2, 2, 2),
    Sketcher.Constraint("Horizontal", 3, 2, 5, 2),
    Sketcher.Constraint("Horizontal", 6, 2, 8, 2),
    Sketcher.Constraint("Horizontal", 9, 2, 11, 2),
    Sketcher.Constraint("Equal", 3, 6),
    Sketcher.Constraint("Equal", 5, 7),
    Sketcher.Constraint("Angle", 1, Q("150 deg")),
    Sketcher.Constraint("DistanceX", -1, 1, 1, 2, Q("13.6 mm")),
    Sketcher.Constraint("DistanceX", 7, 2, -1, 1, Q("13.6 mm")),
    Sketcher.Constraint("DistanceX", 2, 2, 0, 2, Q("4.3 mm")),
    Sketcher.Constraint("DistanceY", 0, 2, 12, 2, Q("27.2 mm")),
    Sketcher.Constraint("DistanceY", 7, 2, -1, 1, Q("16.066399 mm")),
    Sketcher.Constraint("DistanceY", 6, 2, 2, 2, Q("2.466399 mm")),
])
pocket3 = body.newObject("PartDesign::Pocket", "Pocket002")
pocket3.Profile = sketch5
pocket3.setExpression("Length", "Params.pocket3_length")
doc.recompute()

chamfer = body.newObject("PartDesign::Chamfer", "Chamfer")
chamfer.Base = (pocket3, edges_at(pocket3, [(2.5, -5.5, 0)]))
chamfer.setExpression("Size", "Params.chamfer_size")
body2 = doc.addObject("PartDesign::Body", "Body001")
doc.recompute()

body.Placement = App.Placement(V(2, 0, 0), App.Rotation(V(1, 0, 0), 180))
boolean = body2.newObject("PartDesign::Boolean", "Boolean")
boolean.Type = "Fuse"
boolean.addObjects([body])

doc.recompute()
